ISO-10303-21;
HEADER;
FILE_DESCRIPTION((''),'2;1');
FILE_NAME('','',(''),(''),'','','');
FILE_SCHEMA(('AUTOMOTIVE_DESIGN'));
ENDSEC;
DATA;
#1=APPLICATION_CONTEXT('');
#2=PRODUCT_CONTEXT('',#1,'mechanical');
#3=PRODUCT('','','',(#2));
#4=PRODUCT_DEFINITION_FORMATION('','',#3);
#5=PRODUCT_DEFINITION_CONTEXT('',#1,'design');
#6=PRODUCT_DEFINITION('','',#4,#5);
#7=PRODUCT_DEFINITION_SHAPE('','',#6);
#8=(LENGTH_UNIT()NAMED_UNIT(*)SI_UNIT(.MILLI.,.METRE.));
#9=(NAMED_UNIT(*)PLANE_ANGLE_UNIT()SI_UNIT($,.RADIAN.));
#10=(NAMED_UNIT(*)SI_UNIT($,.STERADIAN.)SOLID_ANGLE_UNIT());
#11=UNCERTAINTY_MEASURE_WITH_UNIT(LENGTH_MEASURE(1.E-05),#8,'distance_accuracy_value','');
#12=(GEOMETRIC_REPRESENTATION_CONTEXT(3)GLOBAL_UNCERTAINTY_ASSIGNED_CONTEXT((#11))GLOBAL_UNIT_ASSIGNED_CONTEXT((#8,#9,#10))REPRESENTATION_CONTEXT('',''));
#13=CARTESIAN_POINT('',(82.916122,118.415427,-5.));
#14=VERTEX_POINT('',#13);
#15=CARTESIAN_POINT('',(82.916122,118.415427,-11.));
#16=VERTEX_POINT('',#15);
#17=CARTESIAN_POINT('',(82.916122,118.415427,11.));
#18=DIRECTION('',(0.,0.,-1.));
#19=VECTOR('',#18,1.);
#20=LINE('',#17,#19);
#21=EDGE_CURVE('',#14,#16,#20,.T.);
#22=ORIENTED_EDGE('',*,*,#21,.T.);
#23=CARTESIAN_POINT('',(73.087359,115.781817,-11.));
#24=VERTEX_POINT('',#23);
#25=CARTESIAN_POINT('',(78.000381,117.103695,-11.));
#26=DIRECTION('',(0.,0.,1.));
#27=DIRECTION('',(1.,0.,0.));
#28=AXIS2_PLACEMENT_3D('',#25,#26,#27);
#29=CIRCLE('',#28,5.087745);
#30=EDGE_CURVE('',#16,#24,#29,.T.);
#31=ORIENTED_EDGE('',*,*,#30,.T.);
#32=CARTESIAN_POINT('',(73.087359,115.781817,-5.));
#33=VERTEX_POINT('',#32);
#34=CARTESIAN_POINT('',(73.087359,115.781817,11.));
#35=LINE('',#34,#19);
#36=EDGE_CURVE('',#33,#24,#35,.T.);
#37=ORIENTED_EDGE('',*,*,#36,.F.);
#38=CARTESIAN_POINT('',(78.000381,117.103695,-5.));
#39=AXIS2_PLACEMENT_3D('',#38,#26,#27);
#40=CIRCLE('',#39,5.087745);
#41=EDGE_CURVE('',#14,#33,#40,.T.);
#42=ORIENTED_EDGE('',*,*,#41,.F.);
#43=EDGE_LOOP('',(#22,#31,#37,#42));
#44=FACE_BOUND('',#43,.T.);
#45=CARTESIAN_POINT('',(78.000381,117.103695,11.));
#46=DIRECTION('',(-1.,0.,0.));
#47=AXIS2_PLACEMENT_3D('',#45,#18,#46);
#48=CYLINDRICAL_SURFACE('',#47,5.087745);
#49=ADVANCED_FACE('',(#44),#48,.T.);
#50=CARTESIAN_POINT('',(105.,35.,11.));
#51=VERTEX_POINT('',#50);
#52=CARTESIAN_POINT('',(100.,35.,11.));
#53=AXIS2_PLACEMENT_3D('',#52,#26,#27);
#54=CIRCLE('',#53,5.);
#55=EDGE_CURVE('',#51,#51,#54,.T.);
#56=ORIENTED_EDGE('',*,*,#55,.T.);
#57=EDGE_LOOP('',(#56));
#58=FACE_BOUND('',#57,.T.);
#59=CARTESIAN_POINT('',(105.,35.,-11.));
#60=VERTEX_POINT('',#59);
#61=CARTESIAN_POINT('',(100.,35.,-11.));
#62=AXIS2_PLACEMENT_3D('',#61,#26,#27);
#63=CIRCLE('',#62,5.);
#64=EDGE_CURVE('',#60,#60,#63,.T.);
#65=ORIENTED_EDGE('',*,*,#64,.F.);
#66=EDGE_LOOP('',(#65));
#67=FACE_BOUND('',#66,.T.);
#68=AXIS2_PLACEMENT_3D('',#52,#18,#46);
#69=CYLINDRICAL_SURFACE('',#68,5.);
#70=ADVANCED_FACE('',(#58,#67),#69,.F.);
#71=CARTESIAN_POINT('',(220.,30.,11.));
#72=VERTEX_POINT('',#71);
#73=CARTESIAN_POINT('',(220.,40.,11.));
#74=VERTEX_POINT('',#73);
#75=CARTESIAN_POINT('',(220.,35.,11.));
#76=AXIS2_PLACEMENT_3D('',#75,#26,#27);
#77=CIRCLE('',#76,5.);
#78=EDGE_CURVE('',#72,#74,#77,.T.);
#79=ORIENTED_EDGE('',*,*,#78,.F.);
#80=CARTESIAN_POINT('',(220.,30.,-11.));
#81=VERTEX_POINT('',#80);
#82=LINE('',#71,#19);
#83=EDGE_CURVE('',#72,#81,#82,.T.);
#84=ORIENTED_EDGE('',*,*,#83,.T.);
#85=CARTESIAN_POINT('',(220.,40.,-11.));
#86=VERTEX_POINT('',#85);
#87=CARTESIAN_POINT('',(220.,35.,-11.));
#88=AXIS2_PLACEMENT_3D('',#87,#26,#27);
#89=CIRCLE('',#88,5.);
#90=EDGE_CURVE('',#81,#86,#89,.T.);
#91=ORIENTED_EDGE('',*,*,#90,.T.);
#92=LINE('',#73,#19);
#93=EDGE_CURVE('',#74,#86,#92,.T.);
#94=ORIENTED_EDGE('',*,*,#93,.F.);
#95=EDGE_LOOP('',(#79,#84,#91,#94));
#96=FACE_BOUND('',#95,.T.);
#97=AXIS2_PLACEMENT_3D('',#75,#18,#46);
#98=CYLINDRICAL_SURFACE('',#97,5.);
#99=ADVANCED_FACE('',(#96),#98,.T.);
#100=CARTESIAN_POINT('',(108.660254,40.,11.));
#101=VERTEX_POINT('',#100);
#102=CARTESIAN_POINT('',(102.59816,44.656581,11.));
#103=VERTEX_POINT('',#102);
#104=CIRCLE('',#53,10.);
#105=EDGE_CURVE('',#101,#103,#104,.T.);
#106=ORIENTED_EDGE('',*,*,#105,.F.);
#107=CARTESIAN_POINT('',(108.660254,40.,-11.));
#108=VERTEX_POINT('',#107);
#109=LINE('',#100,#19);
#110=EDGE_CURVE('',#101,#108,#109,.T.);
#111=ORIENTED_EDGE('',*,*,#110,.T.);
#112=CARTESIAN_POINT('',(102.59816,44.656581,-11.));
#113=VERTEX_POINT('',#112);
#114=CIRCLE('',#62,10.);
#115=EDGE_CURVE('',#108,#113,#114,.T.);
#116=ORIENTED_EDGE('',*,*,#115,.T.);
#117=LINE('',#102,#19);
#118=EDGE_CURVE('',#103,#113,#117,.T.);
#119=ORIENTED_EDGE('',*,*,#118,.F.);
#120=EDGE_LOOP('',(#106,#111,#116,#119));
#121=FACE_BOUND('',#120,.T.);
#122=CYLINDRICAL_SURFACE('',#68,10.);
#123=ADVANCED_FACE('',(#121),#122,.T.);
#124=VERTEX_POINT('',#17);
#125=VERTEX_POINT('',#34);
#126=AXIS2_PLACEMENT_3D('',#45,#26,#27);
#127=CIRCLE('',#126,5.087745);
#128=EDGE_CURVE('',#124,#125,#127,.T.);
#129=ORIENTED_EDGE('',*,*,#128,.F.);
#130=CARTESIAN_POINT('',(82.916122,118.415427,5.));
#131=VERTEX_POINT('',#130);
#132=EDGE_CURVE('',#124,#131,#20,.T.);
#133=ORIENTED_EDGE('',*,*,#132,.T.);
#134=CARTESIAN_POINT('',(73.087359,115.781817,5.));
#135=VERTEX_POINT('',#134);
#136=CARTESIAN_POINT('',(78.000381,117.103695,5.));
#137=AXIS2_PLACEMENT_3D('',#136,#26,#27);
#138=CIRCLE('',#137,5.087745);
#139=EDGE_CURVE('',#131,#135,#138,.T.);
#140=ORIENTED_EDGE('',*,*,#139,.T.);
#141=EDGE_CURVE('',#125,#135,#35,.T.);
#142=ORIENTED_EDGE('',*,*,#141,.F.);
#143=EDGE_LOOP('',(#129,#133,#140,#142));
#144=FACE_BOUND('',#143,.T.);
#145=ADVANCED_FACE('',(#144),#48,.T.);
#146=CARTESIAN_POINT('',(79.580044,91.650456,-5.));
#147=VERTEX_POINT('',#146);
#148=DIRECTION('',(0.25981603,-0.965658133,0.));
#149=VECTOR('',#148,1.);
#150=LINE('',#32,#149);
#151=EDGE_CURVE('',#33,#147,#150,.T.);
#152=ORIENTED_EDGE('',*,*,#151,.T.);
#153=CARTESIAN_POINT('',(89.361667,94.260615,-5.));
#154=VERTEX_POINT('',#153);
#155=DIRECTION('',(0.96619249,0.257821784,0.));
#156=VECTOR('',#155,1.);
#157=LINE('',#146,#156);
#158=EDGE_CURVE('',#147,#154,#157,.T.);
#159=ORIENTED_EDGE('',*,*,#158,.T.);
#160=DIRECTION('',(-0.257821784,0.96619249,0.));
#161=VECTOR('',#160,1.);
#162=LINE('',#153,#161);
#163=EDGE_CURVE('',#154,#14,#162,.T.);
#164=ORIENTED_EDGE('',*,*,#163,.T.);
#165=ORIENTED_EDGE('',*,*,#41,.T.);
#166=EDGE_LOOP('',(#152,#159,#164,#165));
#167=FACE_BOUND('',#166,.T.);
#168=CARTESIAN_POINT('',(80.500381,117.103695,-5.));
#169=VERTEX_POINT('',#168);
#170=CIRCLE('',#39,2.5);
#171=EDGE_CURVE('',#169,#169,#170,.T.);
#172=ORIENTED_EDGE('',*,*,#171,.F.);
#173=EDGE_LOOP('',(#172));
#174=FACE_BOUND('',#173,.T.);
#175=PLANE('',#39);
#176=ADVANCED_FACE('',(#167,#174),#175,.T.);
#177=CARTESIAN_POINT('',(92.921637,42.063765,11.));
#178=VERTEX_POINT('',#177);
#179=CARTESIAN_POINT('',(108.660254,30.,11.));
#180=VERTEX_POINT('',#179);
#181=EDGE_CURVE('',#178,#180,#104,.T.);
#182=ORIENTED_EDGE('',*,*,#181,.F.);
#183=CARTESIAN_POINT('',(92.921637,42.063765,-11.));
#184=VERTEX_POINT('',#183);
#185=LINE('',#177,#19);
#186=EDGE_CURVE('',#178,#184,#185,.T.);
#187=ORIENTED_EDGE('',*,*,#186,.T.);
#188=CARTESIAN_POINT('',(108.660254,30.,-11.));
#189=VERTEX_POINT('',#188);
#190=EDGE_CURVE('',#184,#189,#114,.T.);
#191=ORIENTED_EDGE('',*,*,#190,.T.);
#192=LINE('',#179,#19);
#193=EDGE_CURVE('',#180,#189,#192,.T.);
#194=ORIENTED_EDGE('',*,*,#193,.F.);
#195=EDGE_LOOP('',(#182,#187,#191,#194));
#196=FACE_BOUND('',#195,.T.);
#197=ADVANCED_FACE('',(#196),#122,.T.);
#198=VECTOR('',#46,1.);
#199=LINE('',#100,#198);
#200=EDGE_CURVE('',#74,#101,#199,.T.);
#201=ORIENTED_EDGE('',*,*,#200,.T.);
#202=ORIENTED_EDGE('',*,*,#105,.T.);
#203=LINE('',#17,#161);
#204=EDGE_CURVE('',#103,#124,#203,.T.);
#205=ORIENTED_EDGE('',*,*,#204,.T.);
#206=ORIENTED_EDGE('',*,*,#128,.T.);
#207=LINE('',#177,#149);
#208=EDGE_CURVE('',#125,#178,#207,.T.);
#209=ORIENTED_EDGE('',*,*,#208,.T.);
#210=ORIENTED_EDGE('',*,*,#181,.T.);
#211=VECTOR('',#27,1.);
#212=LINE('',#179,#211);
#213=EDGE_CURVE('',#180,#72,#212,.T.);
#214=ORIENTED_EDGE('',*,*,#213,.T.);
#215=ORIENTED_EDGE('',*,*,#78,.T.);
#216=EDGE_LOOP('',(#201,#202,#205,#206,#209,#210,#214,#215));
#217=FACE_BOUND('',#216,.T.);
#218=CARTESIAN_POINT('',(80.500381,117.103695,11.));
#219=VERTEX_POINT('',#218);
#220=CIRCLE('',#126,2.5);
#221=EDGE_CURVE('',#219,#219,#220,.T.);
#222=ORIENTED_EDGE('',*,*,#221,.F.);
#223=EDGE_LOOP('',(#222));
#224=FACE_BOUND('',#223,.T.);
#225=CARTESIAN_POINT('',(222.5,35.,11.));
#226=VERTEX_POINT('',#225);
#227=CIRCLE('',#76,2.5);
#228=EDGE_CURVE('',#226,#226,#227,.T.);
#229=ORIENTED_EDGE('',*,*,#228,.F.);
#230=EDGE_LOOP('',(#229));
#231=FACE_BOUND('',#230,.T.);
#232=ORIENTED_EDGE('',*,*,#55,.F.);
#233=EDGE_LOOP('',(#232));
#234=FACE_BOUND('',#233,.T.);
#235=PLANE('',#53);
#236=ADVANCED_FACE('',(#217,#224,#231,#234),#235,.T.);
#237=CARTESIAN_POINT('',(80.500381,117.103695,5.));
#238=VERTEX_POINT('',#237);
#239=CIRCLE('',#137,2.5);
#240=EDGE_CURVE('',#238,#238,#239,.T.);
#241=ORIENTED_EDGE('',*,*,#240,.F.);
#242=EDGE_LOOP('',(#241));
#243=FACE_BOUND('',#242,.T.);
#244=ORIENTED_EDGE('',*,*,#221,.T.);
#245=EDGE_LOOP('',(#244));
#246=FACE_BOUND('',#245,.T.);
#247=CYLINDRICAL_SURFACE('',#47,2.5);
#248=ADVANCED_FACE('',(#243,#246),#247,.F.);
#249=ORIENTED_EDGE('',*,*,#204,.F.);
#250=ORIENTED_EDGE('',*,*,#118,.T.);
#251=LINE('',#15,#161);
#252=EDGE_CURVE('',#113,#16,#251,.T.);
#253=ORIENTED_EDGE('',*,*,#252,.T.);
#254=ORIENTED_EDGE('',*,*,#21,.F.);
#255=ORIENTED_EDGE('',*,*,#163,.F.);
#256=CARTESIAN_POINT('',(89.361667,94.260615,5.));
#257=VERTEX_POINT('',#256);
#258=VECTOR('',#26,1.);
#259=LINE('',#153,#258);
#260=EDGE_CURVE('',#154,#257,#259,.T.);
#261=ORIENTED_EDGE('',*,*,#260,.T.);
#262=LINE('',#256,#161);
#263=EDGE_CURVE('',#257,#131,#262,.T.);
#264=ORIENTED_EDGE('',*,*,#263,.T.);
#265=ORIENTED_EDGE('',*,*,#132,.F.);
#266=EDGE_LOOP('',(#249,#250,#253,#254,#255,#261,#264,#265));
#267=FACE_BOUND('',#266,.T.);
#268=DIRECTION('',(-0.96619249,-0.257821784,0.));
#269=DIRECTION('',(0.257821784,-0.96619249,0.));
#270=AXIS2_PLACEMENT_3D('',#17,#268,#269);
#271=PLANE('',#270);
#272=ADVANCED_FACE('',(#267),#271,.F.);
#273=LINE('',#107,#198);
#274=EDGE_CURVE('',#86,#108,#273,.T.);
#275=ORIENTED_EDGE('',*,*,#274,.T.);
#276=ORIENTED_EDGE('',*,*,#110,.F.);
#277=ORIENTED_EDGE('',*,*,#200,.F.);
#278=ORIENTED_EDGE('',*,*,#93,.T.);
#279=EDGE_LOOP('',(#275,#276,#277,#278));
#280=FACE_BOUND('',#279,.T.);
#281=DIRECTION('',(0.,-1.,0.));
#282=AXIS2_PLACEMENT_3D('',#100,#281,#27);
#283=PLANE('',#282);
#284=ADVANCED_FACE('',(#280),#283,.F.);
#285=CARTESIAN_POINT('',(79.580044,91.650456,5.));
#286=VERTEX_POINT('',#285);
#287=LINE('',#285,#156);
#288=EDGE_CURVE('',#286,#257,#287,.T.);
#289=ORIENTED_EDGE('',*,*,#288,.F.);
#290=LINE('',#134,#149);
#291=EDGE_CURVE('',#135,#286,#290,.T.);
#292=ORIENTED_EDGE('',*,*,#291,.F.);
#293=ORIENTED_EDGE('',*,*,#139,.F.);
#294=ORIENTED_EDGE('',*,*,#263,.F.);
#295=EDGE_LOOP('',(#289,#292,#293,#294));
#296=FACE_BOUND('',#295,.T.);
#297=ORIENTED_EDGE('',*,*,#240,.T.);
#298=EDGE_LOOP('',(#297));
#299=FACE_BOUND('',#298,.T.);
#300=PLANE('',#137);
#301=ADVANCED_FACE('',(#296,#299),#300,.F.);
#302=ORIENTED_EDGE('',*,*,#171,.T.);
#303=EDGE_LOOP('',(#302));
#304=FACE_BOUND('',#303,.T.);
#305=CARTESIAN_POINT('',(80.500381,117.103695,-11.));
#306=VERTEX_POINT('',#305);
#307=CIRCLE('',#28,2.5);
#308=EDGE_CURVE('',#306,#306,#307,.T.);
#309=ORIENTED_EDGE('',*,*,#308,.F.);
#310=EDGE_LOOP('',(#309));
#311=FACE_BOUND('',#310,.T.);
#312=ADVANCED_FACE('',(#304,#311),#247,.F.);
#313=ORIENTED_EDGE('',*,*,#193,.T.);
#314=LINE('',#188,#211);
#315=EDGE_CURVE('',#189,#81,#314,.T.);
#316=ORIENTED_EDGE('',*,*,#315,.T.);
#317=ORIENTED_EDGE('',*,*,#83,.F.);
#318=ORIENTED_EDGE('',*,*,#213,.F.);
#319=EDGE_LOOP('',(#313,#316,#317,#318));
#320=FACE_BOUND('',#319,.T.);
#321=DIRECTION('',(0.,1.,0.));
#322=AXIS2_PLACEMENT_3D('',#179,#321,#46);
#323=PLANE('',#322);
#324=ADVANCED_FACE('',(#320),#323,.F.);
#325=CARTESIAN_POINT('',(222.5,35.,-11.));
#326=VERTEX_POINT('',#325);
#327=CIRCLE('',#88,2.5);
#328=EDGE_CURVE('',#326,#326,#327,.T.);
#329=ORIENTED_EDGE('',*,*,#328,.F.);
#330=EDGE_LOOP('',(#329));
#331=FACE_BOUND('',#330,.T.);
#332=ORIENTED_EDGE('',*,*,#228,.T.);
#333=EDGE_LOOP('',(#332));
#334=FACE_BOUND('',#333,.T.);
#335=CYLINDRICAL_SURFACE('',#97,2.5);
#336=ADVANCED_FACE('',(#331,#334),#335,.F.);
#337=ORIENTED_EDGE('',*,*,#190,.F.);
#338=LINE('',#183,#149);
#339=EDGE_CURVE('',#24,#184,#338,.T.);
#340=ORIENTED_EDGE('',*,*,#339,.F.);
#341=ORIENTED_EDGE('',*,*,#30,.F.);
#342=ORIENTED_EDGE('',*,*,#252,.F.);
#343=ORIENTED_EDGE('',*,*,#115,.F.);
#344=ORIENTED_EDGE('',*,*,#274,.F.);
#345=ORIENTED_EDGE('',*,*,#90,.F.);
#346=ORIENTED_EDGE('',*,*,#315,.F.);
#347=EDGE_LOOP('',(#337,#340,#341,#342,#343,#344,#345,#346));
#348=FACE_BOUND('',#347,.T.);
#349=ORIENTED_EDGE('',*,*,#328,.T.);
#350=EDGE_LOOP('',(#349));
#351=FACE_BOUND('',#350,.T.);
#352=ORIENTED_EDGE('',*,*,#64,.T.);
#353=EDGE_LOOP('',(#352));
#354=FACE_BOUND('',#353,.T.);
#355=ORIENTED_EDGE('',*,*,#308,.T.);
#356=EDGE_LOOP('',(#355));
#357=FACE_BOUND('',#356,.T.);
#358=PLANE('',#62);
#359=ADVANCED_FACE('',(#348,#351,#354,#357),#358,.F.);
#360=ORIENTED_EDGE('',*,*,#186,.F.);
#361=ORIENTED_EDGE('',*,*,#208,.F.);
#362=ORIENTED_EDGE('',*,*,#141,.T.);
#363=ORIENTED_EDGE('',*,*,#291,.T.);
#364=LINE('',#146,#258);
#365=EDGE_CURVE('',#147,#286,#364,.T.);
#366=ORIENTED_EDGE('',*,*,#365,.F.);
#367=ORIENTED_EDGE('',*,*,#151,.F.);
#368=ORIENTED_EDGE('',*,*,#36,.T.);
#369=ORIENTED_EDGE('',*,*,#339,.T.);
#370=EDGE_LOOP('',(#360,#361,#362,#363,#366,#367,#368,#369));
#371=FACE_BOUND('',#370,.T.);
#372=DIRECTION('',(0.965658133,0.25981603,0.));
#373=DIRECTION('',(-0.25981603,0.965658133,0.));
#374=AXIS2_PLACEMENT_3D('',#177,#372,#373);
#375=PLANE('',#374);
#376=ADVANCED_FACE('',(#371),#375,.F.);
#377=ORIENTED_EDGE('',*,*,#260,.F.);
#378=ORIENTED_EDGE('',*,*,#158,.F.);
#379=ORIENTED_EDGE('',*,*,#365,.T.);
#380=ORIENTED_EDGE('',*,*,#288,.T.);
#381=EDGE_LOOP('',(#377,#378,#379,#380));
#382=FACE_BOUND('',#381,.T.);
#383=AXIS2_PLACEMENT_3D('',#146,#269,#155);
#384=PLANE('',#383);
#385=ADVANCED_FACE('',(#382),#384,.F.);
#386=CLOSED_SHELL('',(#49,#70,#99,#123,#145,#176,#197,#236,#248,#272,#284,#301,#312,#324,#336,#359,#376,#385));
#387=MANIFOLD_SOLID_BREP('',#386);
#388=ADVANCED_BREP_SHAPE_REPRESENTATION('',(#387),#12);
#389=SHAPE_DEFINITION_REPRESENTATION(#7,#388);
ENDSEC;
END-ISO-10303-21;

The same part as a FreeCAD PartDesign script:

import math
import FreeCAD as App
import Part
import Sketcher
from FreeCAD import Vector

doc = App.newDocument("Part")
body = doc.addObject("PartDesign::Body", "Body")

sketch1 = doc.addObject("Sketcher::SketchObject", "Sketch")
body.addObject(sketch1)
sketch1.AttachmentSupport = (doc.XY_Plane, [""])
sketch1.MapMode = "FlatFace"
sketch1.addGeometry([
    Part.LineSegment(Vector(102.59816, 44.656581, 0), Vector(82.916122, 118.415427, 0)),
    Part.ArcOfCircle(Part.Circle(Vector(78.000381, 117.103695, 0), Vector(0, 0, 1), 5.087745), math.radians(14.940854), math.radians(195.059146)),
    Part.LineSegment(Vector(73.087359, 115.781817, 0), Vector(92.921637, 42.063765, 0)),
    Part.ArcOfCircle(Part.Circle(Vector(100, 35, 0), Vector(0, 0, 1), 10), math.radians(135.059146), math.radians(330)),
    Part.LineSegment(Vector(108.660254, 30, 0), Vector(220, 30, 0)),
    Part.ArcOfCircle(Part.Circle(Vector(220, 35, 0), Vector(0, 0, 1), 5), math.radians(-90), math.radians(90)),
    Part.LineSegment(Vector(220, 40, 0), Vector(108.660254, 40, 0)),
    Part.ArcOfCircle(Part.Circle(Vector(100, 35, 0), Vector(0, 0, 1), 10), math.radians(30), math.radians(74.940854)),
    Part.Circle(Vector(220, 35, 0), Vector(0, 0, 1), 2.5),
    Part.Circle(Vector(100, 35, 0), Vector(0, 0, 1), 5),
    Part.Circle(Vector(78.000381, 117.103695, 0), Vector(0, 0, 1), 2.5),
], False)
sketch1.addConstraint([
    Sketcher.Constraint("Coincident", 0, 2, 1, 1),
    Sketcher.Constraint("Coincident", 1, 2, 2, 1),
    Sketcher.Constraint("Coincident", 2, 2, 3, 1),
    Sketcher.Constraint("Coincident", 3, 2, 4, 1),
    Sketcher.Constraint("Coincident", 4, 2, 5, 1),
    Sketcher.Constraint("Coincident", 5, 2, 6, 1),
    Sketcher.Constraint("Coincident", 6, 2, 7, 1),
    Sketcher.Constraint("Coincident", 7, 2, 0, 1),
    Sketcher.Constraint("Horizontal", 4),
    Sketcher.Constraint("Horizontal", 6),
    Sketcher.Constraint("Coincident", 7, 3, 3, 3),
    Sketcher.Constraint("Coincident", 8, 3, 5, 3),
    Sketcher.Constraint("Coincident", 9, 3, 3, 3),
    Sketcher.Constraint("Coincident", 10, 3, 1, 3),
    Sketcher.Constraint("Diameter", 8, 5.0),
    Sketcher.Constraint("Diameter", 9, 10.0),
    Sketcher.Constraint("Diameter", 10, 5.0),
    Sketcher.Constraint("Radius", 3, 10.0),
    Sketcher.Constraint("Radius", 5, 5.0),
    Sketcher.Constraint("Radius", 7, 10.0),
    Sketcher.Constraint("DistanceX", -1, 1, 3, 3, 100.0),
    Sketcher.Constraint("DistanceY", -1, 1, 3, 3, 35.0),
    Sketcher.Constraint("DistanceX", -1, 1, 5, 3, 220.0),
    Sketcher.Constraint("DistanceY", -1, 1, 5, 3, 35.0),
    Sketcher.Constraint("DistanceX", -1, 1, 4, 2, 220.0),
    Sketcher.Constraint("DistanceX", -1, 1, 5, 2, 220.0),
    Sketcher.Constraint("Radius", 1, 5.087745),
    Sketcher.Constraint("Distance", 0, 76.339701),
    Sketcher.Constraint("Distance", 2, 76.339701),
    Sketcher.Constraint("DistanceX", -1, 1, 1, 3, 78.000381),
    Sketcher.Constraint("DistanceX", -1, 1, 1, 2, 73.087359),
    Sketcher.Constraint("DistanceX", -1, 1, 7, 2, 102.59816),
    Sketcher.Constraint("DistanceX", 10, 3, 0, 2, 4.915741),
])
pad1 = doc.addObject("PartDesign::Pad", "Pad")
body.addObject(pad1)
pad1.Profile = sketch1
pad1.Length = 22
pad1.Midplane = True

sketch2 = doc.addObject("Sketcher::SketchObject", "Sketch001")
body.addObject(sketch2)
sketch2.AttachmentSupport = (doc.XY_Plane, [""])
sketch2.MapMode = "FlatFace"
sketch2.addGeometry([
    Part.LineSegment(Vector(102.59816, 44.656581, 0), Vector(82.916122, 118.415427, 0)),
    Part.ArcOfCircle(Part.Circle(Vector(78.000381, 117.103695, 0), Vector(0, 0, 1), 5.087745), math.radians(14.940854), math.radians(195.059146)),
    Part.LineSegment(Vector(73.087359, 115.781817, 0), Vector(92.921637, 42.063765, 0)),
    Part.ArcOfCircle(Part.Circle(Vector(100, 35, 0), Vector(0, 0, 1), 10), math.radians(135.059146), math.radians(330)),
    Part.LineSegment(Vector(108.660254, 30, 0), Vector(220, 30, 0)),
    Part.ArcOfCircle(Part.Circle(Vector(220, 35, 0), Vector(0, 0, 1), 5), math.radians(-90), math.radians(90)),
    Part.LineSegment(Vector(220, 40, 0), Vector(108.660254, 40, 0)),
    Part.ArcOfCircle(Part.Circle(Vector(100, 35, 0), Vector(0, 0, 1), 10), math.radians(30), math.radians(74.940854)),
    Part.Circle(Vector(100, 35, 0), Vector(0, 0, 1), 5),
    Part.Circle(Vector(220, 35, 0), Vector(0, 0, 1), 2.5),
    Part.Circle(Vector(78.000381, 117.103695, 0), Vector(0, 0, 1), 2.5),
], False)
sketch2.addConstraint([
    Sketcher.Constraint("Coincident", 0, 2, 1, 1),
    Sketcher.Constraint("Coincident", 1, 2, 2, 1),
    Sketcher.Constraint("Coincident", 2, 2, 3, 1),
    Sketcher.Constraint("Coincident", 3, 2, 4, 1),
    Sketcher.Constraint("Coincident", 4, 2, 5, 1),
    Sketcher.Constraint("Coincident", 5, 2, 6, 1),
    Sketcher.Constraint("Coincident", 6, 2, 7, 1),
    Sketcher.Constraint("Coincident", 7, 2, 0, 1),
    Sketcher.Constraint("Horizontal", 4),
    Sketcher.Constraint("Horizontal", 6),
    Sketcher.Constraint("Coincident", 7, 3, 3, 3),
    Sketcher.Constraint("Coincident", 8, 3, 3, 3),
    Sketcher.Constraint("Coincident", 9, 3, 5, 3),
    Sketcher.Constraint("Coincident", 10, 3, 1, 3),
    Sketcher.Constraint("Diameter", 8, 10.0),
    Sketcher.Constraint("Diameter", 9, 5.0),
    Sketcher.Constraint("Diameter", 10, 5.0),
    Sketcher.Constraint("Radius", 3, 10.0),
    Sketcher.Constraint("Radius", 5, 5.0),
    Sketcher.Constraint("Radius", 7, 10.0),
    Sketcher.Constraint("DistanceX", -1, 1, 3, 3, 100.0),
    Sketcher.Constraint("DistanceY", -1, 1, 3, 3, 35.0),
    Sketcher.Constraint("DistanceX", -1, 1, 5, 3, 220.0),
    Sketcher.Constraint("DistanceY", -1, 1, 5, 3, 35.0),
    Sketcher.Constraint("DistanceX", -1, 1, 4, 2, 220.0),
    Sketcher.Constraint("DistanceX", -1, 1, 5, 2, 220.0),
    Sketcher.Constraint("Radius", 1, 5.087745),
    Sketcher.Constraint("Distance", 0, 76.339701),
    Sketcher.Constraint("Distance", 2, 76.339701),
    Sketcher.Constraint("DistanceX", -1, 1, 1, 3, 78.000381),
    Sketcher.Constraint("DistanceX", -1, 1, 1, 2, 73.087359),
    Sketcher.Constraint("DistanceX", -1, 1, 7, 2, 102.59816),
    Sketcher.Constraint("DistanceX", 10, 3, 0, 2, 4.915741),
])
pad2 = doc.addObject("PartDesign::Pad", "Pad001")
body.addObject(pad2)
pad2.Profile = sketch2
pad2.Length = 22
pad2.Midplane = True

sketch3 = doc.addObject("Sketcher::SketchObject", "Sketch002")
body.addObject(sketch3)
sketch3.AttachmentSupport = (doc.XY_Plane, [""])
sketch3.MapMode = "FlatFace"
sketch3.addGeometry([
    Part.LineSegment(Vector(89.361667, 94.260615, 0), Vector(82.916122, 118.415427, 0)),
    Part.ArcOfCircle(Part.Circle(Vector(78.000381, 117.103695, 0), Vector(0, 0, 1), 5.087745), math.radians(14.940854), math.radians(195.059146)),
    Part.LineSegment(Vector(73.087359, 115.781817, 0), Vector(79.580044, 91.650456, 0)),
    Part.LineSegment(Vector(79.580044, 91.650456, 0), Vector(89.361667, 94.260615, 0)),
    Part.Circle(Vector(78.000381, 117.103695, 0), Vector(0, 0, 1), 2.5),
], False)
sketch3.addConstraint([
    Sketcher.Constraint("Tangent", 0, 2, 1, 1),
    Sketcher.Constraint("Tangent", 1, 2, 2, 1),
    Sketcher.Constraint("Coincident", 2, 2, 3, 1),
    Sketcher.Constraint("Coincident", 3, 2, 0, 1),
    Sketcher.Constraint("Coincident", 4, 3, 1, 3),
    Sketcher.Constraint("Perpendicular", 0, 3),
    Sketcher.Constraint("Diameter", 4, 5.0),
    Sketcher.Constraint("Distance", 0, 25.0),
    Sketcher.Constraint("Radius", 1, 5.087745),
    Sketcher.Constraint("Distance", 2, 24.989549),
    Sketcher.Constraint("DistanceX", -1, 1, 1, 3, 78.000381),
    Sketcher.Constraint("DistanceX", -1, 1, 1, 2, 73.087359),
    Sketcher.Constraint("DistanceY", -1, 1, 1, 3, 117.103695),
])
pocket1 = doc.addObject("PartDesign::Pocket", "Pocket")
body.addObject(pocket1)
pocket1.Profile = sketch3
pocket1.Length = 10
pocket1.Midplane = True

doc.recompute()
